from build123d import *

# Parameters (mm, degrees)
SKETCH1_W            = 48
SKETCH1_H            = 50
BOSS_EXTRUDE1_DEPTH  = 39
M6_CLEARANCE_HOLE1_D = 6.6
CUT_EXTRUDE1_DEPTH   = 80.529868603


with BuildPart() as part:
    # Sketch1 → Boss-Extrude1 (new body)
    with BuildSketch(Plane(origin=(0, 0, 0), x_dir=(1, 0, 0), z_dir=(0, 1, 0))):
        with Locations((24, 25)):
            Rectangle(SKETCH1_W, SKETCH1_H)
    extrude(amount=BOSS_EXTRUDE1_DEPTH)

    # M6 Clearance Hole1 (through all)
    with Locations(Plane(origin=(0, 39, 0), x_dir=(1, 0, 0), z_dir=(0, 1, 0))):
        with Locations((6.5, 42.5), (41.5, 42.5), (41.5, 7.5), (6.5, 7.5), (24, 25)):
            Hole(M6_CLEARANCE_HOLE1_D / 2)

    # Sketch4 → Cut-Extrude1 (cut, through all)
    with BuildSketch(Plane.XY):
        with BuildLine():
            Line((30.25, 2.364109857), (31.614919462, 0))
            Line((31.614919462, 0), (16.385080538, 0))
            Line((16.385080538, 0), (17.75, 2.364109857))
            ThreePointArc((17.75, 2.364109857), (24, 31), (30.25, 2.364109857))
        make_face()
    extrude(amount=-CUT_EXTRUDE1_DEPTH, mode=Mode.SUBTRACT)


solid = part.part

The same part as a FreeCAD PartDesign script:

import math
import FreeCAD as App
import Part
import Sketcher

V = App.Vector
Q = App.Units.Quantity


def add_polygon(sketch, points):
    """Adds a closed chain of lines whose ends are joined by coincident constraints."""
    first, n = sketch.GeometryCount, len(points)
    for a, b in zip(points, points[1:] + points[:1]):
        sketch.addGeometry(Part.LineSegment(App.Vector(*a, 0), App.Vector(*b, 0)), False)
    for i in range(n):
        sketch.addConstraint(Sketcher.Constraint("Coincident", first + i, 2, first + (i + 1) % n, 1))

doc = App.newDocument("Part")
body = doc.addObject("PartDesign::Body", "Body")

# Sketch on XZ plane
sketch1 = body.newObject("Sketcher::SketchObject", "Sketch")
sketch1.AttachmentSupport = (doc.getObject("XZ_Plane"), [""])
sketch1.MapMode = "FlatFace"
add_polygon(sketch1, [(0, -50), (0, 0), (48, 0), (48, -50)])  # lines 0-3
sketch1.addConstraint(Sketcher.Constraint("Vertical", 0))
sketch1.addConstraint(Sketcher.Constraint("Horizontal", 1))
sketch1.addConstraint(Sketcher.Constraint("Vertical", 2))
sketch1.addConstraint(Sketcher.Constraint("Horizontal", 3))
sketch1.addConstraint(Sketcher.Constraint("Coincident", 0, 2, -1, 1))
sketch1.addConstraint(Sketcher.Constraint("DistanceX", 1, 1, 1, 2, 48.0))
sketch1.addConstraint(Sketcher.Constraint("DistanceY", 0, 1, 0, 2, 50.0))
pad1 = body.newObject("PartDesign::Pad", "Pad")
pad1.Profile = sketch1
pad1.Length = 39
pad1.Reversed = True

# Sketch on XZ plane
sketch2 = body.newObject("Sketcher::SketchObject", "Sketch001")
sketch2.AttachmentSupport = (doc.getObject("XZ_Plane"), [""])
sketch2.MapMode = "FlatFace"
sketch2.AttachmentOffset = App.Placement(V(0, 0, -39), App.Rotation())
sketch2.addGeometry(Part.Circle(V(6.5, -42.5, 0), V(0, 0, 1), 3.3), False)
sketch2.addGeometry(Part.Circle(V(41.5, -42.5, 0), V(0, 0, 1), 3.3), False)
sketch2.addGeometry(Part.Circle(V(41.5, -7.5, 0), V(0, 0, 1), 3.3), False)
sketch2.addGeometry(Part.Circle(V(6.5, -7.5, 0), V(0, 0, 1), 3.3), False)
sketch2.addGeometry(Part.Circle(V(24, -25, 0), V(0, 0, 1), 3.3), False)
sketch2.addConstraint(Sketcher.Constraint("Equal", 0, 1))
sketch2.addConstraint(Sketcher.Constraint("Equal", 1, 2))
sketch2.addConstraint(Sketcher.Constraint("Equal", 2, 3))
sketch2.addConstraint(Sketcher.Constraint("Equal", 3, 4))
sketch2.addConstraint(Sketcher.Constraint("Horizontal", 0, 3, 1, 3))
sketch2.addConstraint(Sketcher.Constraint("Horizontal", 2, 3, 3, 3))
sketch2.addConstraint(Sketcher.Constraint("Vertical", 1, 3, 2, 3))
sketch2.addConstraint(Sketcher.Constraint("Vertical", 0, 3, 3, 3))
sketch2.addConstraint(Sketcher.Constraint("Diameter", 0, 6.6))
sketch2.addConstraint(Sketcher.Constraint("DistanceX", -1, 1, 4, 3, 24.0))
sketch2.addConstraint(Sketcher.Constraint("DistanceY", 4, 3, -1, 1, 25.0))
sketch2.addConstraint(Sketcher.Constraint("DistanceX", 0, 3, 1, 3, 35.0))
sketch2.addConstraint(Sketcher.Constraint("DistanceY", 1, 3, 2, 3, 35.0))
sketch2.addConstraint(Sketcher.Constraint("DistanceX", -1, 1, 0, 3, 6.5))
sketch2.addConstraint(Sketcher.Constraint("DistanceY", 0, 3, -1, 1, 42.5))
doc.recompute()
hole = body.newObject("PartDesign::Hole", "Hole")
hole.Profile = sketch2
hole.ThreadType = "None"
hole.Diameter = 6.6
hole.DepthType = "ThroughAll"
hole.Reversed = True

# Sketch on XY plane
sketch3 = body.newObject("Sketcher::SketchObject", "Sketch002")
sketch3.AttachmentSupport = (doc.getObject("XY_Plane"), [""])
sketch3.MapMode = "FlatFace"
sketch3.addGeometry(Part.LineSegment(V(31.6, 0, 0), V(30.2, 2.4, 0)), False)
sketch3.addGeometry(Part.ArcOfCircle(Part.Circle(V(24, 16, 0), V(0, 0, 1), 15), math.radians(-65), math.radians(245)), False)
sketch3.addGeometry(Part.LineSegment(V(17.8, 2.4, 0), V(16.4, 0, 0)), False)
sketch3.addGeometry(Part.LineSegment(V(16.4, 0, 0), V(31.6, 0, 0)), False)
sketch3.addConstraint(Sketcher.Constraint("Coincident", 0, 2, 1, 1))
sketch3.addConstraint(Sketcher.Constraint("Coincident", 1, 2, 2, 1))
sketch3.addConstraint(Sketcher.Constraint("Coincident", 2, 2, 3, 1))
sketch3.addConstraint(Sketcher.Constraint("Coincident", 3, 2, 0, 1))
sketch3.addConstraint(Sketcher.Constraint("Horizontal", 3))
sketch3.addConstraint(Sketcher.Constraint("PointOnObject", 2, 2, -1))
sketch3.addConstraint(Sketcher.Constraint("Horizontal", 0, 2, 1, 2))
sketch3.addConstraint(Sketcher.Constraint("Equal", 0, 2))
sketch3.addConstraint(Sketcher.Constraint("Radius", 1, 15.0))
sketch3.addConstraint(Sketcher.Constraint("Angle", 0, Q("120 deg")))
sketch3.addConstraint(Sketcher.Constraint("DistanceX", -1, 1, 1, 3, 24.0))
sketch3.addConstraint(Sketcher.Constraint("DistanceY", -1, 1, 1, 3, 16.0))
sketch3.addConstraint(Sketcher.Constraint("DistanceX", 1, 2, 0, 2, 12.5))
pocket1 = body.newObject("PartDesign::Pocket", "Pocket")
pocket1.Profile = sketch3
pocket1.Type = "ThroughAll"

doc.recompute()
